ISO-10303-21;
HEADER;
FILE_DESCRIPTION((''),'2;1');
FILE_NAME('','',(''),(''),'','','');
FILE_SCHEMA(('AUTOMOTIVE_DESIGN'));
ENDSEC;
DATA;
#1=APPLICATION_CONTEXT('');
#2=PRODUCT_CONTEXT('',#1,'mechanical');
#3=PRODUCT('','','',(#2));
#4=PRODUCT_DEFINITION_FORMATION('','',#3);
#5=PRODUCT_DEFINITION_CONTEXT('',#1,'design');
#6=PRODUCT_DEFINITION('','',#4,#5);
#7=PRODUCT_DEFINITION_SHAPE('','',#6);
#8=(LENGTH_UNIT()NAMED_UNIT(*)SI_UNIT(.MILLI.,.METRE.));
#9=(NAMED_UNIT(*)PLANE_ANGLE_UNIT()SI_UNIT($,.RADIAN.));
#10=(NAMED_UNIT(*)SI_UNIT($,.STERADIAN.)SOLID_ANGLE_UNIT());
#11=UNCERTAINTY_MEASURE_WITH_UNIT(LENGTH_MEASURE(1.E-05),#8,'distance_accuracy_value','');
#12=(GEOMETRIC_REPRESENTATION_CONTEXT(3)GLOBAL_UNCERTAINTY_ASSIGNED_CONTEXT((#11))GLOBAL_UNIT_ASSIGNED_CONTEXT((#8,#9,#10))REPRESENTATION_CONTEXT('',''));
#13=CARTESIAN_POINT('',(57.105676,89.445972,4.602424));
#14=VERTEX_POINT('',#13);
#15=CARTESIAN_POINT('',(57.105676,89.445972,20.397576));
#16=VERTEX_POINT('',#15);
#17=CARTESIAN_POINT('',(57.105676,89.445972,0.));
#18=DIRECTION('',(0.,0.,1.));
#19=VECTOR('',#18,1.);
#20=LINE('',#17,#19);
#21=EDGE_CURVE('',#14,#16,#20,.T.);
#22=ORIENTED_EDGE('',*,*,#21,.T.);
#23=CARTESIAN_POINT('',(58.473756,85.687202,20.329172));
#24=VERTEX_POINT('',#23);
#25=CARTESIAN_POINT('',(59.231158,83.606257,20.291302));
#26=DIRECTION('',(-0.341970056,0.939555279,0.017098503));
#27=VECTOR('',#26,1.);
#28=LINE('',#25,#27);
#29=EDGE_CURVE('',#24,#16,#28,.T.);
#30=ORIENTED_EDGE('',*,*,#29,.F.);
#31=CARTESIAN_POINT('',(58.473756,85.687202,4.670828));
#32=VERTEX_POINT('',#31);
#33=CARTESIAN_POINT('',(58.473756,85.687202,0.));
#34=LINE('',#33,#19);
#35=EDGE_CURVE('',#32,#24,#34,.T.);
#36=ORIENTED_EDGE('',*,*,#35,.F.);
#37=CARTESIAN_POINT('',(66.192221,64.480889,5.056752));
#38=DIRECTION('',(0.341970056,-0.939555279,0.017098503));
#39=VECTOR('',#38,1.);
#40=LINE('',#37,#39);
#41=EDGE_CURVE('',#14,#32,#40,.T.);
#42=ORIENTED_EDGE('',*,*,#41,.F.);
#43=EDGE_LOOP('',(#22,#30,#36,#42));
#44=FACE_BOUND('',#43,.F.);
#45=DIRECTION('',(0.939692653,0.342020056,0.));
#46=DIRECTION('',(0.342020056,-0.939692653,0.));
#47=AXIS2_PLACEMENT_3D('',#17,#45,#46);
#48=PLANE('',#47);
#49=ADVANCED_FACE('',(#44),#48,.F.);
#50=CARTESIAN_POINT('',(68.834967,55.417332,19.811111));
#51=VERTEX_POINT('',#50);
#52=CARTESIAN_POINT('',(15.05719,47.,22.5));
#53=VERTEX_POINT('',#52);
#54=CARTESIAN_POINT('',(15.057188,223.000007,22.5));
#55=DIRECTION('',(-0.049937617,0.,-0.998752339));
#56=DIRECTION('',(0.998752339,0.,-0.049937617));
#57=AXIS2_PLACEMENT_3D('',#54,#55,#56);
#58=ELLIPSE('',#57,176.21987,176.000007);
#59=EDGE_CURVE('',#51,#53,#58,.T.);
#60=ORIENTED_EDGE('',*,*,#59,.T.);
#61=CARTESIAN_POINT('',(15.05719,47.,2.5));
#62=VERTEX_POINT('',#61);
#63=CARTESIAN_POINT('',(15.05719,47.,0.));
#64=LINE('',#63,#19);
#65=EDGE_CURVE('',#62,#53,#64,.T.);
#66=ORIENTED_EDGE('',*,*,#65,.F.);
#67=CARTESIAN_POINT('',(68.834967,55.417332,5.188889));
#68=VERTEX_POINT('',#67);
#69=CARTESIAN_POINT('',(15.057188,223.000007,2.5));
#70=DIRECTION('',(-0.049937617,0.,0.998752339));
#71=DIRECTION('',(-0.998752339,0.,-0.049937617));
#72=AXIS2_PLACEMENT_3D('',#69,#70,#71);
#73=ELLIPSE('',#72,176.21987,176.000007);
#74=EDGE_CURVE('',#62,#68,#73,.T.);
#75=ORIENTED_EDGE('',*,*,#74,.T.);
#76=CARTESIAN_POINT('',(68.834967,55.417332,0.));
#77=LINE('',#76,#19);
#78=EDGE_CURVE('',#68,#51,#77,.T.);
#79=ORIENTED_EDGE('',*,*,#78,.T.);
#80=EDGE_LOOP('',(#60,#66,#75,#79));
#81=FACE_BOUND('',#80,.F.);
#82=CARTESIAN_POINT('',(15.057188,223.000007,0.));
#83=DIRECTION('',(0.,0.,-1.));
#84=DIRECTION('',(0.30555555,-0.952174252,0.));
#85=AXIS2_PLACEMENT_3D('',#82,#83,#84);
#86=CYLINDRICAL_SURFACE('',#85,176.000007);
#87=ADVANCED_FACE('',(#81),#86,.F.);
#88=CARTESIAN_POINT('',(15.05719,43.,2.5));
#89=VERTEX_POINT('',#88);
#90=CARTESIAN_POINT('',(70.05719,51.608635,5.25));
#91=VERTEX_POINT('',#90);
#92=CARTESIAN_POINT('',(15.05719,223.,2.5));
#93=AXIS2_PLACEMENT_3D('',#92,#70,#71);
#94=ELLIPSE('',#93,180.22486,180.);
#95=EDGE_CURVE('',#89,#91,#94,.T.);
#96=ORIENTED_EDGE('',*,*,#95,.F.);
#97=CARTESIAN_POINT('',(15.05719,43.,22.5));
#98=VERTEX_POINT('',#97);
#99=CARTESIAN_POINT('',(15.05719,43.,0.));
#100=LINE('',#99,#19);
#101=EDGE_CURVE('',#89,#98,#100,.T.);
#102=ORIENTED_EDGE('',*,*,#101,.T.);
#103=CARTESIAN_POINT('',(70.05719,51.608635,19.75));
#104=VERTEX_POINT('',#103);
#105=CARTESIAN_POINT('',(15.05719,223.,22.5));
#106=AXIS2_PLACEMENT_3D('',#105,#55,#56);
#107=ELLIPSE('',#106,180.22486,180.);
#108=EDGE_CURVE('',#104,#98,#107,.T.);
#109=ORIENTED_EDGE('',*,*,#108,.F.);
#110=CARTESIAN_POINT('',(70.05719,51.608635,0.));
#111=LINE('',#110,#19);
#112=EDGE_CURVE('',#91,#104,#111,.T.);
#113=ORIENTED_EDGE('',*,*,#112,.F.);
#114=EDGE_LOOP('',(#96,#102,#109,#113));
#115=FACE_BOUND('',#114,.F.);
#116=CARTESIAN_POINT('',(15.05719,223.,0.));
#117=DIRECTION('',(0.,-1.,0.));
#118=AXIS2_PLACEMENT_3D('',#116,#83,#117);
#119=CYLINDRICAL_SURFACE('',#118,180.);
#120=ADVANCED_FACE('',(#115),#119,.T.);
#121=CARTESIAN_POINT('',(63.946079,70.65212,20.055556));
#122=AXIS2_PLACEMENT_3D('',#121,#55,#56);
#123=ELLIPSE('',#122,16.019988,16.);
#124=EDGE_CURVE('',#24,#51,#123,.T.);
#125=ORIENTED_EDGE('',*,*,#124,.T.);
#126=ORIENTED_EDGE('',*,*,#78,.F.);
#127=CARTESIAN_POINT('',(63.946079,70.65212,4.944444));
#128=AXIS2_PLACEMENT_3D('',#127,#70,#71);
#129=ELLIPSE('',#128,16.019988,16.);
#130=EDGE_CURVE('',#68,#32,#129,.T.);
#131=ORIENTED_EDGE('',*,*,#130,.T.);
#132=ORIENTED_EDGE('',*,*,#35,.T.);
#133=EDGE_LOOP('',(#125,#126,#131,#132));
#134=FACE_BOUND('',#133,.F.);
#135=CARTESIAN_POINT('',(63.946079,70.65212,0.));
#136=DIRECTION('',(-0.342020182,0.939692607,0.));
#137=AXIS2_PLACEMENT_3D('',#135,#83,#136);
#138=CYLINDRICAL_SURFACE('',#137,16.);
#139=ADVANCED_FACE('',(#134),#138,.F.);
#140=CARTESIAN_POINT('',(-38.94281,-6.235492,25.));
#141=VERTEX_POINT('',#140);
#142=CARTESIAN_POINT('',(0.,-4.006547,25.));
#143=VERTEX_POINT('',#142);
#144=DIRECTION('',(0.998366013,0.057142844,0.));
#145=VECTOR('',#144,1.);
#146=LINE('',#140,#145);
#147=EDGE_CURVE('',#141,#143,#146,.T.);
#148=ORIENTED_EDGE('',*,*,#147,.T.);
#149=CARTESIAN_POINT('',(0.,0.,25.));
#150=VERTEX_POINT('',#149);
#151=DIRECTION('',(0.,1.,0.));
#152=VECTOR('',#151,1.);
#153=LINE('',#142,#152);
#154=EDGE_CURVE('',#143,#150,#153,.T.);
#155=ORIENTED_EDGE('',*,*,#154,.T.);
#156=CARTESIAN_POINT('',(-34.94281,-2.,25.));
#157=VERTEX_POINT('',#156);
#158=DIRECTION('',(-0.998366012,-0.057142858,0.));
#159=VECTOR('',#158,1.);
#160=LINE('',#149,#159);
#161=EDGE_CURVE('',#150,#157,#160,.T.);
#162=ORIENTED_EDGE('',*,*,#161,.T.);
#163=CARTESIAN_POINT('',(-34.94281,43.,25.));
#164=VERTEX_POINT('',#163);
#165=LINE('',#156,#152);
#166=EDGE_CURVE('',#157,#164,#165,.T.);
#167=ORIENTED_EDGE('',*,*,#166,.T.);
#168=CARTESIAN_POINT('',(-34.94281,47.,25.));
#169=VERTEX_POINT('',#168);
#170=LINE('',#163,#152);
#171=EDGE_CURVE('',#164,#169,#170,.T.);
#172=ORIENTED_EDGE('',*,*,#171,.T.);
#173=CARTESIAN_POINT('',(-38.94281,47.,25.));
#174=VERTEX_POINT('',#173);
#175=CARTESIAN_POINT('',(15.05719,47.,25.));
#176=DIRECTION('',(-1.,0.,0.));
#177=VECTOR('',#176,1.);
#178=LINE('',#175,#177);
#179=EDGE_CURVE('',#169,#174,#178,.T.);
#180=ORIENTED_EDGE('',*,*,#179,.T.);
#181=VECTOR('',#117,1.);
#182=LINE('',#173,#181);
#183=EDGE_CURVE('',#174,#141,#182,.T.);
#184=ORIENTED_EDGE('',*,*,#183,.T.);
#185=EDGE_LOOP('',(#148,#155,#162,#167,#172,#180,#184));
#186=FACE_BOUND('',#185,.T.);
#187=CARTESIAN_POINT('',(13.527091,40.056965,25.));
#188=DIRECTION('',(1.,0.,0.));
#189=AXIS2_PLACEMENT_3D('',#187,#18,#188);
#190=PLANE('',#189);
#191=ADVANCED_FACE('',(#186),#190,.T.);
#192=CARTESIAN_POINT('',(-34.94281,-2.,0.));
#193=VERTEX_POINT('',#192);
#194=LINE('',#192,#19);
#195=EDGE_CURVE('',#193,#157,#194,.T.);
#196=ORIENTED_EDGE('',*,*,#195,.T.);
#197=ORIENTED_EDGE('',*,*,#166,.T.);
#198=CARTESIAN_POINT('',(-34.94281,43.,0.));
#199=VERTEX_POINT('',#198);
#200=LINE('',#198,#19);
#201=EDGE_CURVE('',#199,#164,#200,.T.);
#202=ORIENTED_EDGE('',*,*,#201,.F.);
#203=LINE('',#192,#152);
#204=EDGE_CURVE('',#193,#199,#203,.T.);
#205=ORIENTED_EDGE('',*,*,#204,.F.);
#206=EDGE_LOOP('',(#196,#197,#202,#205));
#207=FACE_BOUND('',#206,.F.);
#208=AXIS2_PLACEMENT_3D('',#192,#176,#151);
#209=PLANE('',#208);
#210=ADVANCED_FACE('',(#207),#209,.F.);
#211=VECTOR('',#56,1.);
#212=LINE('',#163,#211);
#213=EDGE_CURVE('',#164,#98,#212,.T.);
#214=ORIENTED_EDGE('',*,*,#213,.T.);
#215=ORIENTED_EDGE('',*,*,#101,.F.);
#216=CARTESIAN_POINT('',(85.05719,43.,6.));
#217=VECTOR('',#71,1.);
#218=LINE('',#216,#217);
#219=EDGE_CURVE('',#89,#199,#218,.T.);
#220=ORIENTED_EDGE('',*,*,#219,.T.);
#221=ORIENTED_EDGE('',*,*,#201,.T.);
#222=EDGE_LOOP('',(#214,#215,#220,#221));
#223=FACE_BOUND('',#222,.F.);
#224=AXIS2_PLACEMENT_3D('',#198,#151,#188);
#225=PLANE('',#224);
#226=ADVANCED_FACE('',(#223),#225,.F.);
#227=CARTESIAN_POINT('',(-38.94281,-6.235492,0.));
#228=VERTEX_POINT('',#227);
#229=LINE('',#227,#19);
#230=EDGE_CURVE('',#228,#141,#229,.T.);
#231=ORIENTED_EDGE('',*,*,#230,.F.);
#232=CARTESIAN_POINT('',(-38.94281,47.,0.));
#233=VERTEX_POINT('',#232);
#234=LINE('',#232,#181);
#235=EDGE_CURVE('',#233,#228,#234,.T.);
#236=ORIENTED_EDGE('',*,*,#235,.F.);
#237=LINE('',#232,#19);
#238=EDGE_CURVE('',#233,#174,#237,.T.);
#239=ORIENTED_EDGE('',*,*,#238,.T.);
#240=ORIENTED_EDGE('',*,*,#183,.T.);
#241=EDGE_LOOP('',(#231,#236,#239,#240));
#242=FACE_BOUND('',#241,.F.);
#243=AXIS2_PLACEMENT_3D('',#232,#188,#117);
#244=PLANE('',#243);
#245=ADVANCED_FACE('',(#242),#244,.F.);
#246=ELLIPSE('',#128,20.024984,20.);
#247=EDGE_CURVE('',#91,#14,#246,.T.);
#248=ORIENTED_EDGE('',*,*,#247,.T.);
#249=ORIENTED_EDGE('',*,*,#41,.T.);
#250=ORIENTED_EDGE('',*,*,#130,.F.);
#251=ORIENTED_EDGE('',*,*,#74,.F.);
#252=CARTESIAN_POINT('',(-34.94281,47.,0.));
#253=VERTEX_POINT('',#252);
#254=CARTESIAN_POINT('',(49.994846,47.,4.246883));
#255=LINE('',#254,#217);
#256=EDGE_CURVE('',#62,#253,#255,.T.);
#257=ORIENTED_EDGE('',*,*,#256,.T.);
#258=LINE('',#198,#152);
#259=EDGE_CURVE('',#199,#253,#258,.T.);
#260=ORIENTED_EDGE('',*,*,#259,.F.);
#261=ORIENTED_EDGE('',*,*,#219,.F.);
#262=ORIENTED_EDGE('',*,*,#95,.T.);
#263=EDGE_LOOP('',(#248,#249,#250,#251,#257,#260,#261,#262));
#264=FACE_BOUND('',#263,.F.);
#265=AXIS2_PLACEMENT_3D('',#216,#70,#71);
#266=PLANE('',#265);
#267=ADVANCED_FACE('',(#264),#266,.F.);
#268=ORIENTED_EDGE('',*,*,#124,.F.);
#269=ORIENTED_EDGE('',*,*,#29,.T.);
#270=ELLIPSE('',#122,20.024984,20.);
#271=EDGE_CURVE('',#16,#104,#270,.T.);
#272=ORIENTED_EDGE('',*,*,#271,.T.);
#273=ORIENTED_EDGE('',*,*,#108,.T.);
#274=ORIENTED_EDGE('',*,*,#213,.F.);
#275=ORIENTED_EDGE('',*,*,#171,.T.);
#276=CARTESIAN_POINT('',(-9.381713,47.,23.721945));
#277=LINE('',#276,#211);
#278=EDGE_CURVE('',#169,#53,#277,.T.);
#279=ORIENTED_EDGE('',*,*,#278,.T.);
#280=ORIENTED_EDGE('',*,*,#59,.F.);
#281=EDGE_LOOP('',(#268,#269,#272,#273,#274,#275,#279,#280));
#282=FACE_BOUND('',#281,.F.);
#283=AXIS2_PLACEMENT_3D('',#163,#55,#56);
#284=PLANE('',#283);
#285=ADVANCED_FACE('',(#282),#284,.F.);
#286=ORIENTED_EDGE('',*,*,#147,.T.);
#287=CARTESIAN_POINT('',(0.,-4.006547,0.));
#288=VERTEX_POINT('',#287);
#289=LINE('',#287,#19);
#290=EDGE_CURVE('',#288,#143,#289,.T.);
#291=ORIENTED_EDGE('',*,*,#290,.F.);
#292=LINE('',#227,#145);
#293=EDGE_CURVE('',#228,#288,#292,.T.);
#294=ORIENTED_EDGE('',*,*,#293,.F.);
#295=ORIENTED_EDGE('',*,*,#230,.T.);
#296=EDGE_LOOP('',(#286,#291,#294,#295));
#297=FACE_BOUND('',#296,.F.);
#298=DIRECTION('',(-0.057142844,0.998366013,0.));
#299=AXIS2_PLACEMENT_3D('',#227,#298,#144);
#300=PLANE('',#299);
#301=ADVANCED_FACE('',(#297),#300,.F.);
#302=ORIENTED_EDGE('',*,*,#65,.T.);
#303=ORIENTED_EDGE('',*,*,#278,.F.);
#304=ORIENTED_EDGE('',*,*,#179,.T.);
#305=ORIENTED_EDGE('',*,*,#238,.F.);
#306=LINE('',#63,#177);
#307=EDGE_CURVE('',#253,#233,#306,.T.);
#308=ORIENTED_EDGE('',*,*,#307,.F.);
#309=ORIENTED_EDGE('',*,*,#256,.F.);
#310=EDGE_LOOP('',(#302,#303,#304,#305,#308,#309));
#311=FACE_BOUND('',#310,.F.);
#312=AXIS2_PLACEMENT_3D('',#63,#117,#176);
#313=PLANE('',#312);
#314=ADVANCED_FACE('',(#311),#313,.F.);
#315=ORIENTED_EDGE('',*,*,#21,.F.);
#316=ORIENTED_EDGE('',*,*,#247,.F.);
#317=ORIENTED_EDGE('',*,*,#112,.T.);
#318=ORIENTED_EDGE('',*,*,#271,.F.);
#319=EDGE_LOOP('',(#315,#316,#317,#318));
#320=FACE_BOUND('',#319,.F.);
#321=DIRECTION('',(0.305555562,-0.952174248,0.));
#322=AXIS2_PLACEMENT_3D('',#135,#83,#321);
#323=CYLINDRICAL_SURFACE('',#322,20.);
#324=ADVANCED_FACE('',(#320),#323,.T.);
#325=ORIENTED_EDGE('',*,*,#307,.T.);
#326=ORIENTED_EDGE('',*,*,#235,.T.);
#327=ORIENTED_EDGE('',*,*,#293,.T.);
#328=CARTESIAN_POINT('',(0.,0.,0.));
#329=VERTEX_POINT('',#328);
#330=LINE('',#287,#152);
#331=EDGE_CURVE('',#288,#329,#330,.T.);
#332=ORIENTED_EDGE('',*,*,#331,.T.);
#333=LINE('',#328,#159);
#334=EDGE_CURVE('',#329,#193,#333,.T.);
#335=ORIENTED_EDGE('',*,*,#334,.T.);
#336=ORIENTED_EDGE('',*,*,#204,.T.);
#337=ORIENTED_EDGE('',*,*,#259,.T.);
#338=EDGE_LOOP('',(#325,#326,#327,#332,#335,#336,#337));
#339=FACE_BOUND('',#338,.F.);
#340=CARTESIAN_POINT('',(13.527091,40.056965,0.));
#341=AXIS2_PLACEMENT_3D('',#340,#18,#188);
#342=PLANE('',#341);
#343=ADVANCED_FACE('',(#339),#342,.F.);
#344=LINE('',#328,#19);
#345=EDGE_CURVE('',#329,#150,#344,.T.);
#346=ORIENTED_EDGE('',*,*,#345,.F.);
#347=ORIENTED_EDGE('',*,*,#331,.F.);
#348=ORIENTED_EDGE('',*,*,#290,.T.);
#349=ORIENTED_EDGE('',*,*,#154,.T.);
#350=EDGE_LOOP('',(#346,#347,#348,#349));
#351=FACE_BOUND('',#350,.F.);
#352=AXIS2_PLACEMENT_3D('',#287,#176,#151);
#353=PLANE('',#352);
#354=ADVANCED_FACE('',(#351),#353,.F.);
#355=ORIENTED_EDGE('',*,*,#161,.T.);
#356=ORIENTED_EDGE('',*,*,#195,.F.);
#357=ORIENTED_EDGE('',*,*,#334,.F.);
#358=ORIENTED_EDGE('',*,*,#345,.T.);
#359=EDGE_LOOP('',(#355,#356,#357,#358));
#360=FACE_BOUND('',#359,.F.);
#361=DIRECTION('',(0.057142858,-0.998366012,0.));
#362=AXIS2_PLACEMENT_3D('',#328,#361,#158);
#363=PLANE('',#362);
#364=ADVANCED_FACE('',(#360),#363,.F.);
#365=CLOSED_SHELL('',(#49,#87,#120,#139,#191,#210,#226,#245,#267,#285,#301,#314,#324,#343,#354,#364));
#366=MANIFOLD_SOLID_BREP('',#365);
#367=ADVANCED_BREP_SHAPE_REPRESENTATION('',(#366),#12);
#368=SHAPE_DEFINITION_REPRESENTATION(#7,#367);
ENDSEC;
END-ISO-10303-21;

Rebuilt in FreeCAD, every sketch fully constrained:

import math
import FreeCAD as App
import Part
import Sketcher
from FreeCAD import Vector
Q = App.Units.Quantity

doc = App.newDocument("Part")
body = doc.addObject("PartDesign::Body", "Body")

# Sketch on XY plane
sketch1 = doc.addObject("Sketcher::SketchObject", "Sketch")
body.addObject(sketch1)
sketch1.AttachmentSupport = (doc.XY_Plane, [""])
sketch1.MapMode = "FlatFace"
sketch1.addGeometry(Part.LineSegment(Vector(0, -4.006547, 0), Vector(0, 0, 0)), False)
sketch1.addGeometry(Part.LineSegment(Vector(0, 0, 0), Vector(-34.94281, -2, 0)), False)
sketch1.addGeometry(Part.LineSegment(Vector(-34.94281, -2, 0), Vector(-34.94281, 43, 0)), False)
sketch1.addGeometry(Part.LineSegment(Vector(-34.94281, 43, 0), Vector(15.05719, 43, 0)), False)
sketch1.addGeometry(Part.ArcOfCircle(Part.Circle(Vector(15.05719, 223, 0), Vector(0, 0, 1), 180), math.radians(-90), math.radians(-72.208409)), False)
sketch1.addGeometry(Part.ArcOfCircle(Part.Circle(Vector(63.946079, 70.65212, 0), Vector(0, 0, 1), 20), math.radians(-72.208409), math.radians(110)), False)
sketch1.addGeometry(Part.LineSegment(Vector(57.105676, 89.445972, 0), Vector(58.473756, 85.687202, 0)), False)
sketch1.addGeometry(Part.ArcOfCircle(Part.Circle(Vector(63.946079, 70.65212, 0), Vector(0, 0, 1), 16), math.radians(-72.208412), math.radians(110.000002)), False)
sketch1.addGeometry(Part.ArcOfCircle(Part.Circle(Vector(15.057188, 223.000007, 0), Vector(0, 0, 1), 176.000007), math.radians(-89.999999), math.radians(-72.20841)), False)
sketch1.addGeometry(Part.LineSegment(Vector(15.05719, 47, 0), Vector(-38.94281, 47, 0)), False)
sketch1.addGeometry(Part.LineSegment(Vector(-38.94281, 47, 0), Vector(-38.94281, -6.235492, 0)), False)
sketch1.addGeometry(Part.LineSegment(Vector(-38.94281, -6.235492, 0), Vector(0, -4.006547, 0)), False)
sketch1.addConstraint(Sketcher.Constraint("Coincident", 0, 2, 1, 1))
sketch1.addConstraint(Sketcher.Constraint("Coincident", 1, 2, 2, 1))
sketch1.addConstraint(Sketcher.Constraint("Coincident", 2, 2, 3, 1))
sketch1.addConstraint(Sketcher.Constraint("Tangent", 3, 2, 4, 1))
sketch1.addConstraint(Sketcher.Constraint("Tangent", 4, 2, 5, 1))
sketch1.addConstraint(Sketcher.Constraint("Coincident", 5, 2, 6, 1))
sketch1.addConstraint(Sketcher.Constraint("Coincident", 6, 2, 7, 2))
sketch1.addConstraint(Sketcher.Constraint("Tangent", 7, 1, 8, 2))
sketch1.addConstraint(Sketcher.Constraint("Tangent", 8, 1, 9, 1))
sketch1.addConstraint(Sketcher.Constraint("Coincident", 9, 2, 10, 1))
sketch1.addConstraint(Sketcher.Constraint("Coincident", 10, 2, 11, 1))
sketch1.addConstraint(Sketcher.Constraint("Coincident", 11, 2, 0, 1))
sketch1.addConstraint(Sketcher.Constraint("Vertical", 0))
sketch1.addConstraint(Sketcher.Constraint("Vertical", 2))
sketch1.addConstraint(Sketcher.Constraint("Horizontal", 3))
sketch1.addConstraint(Sketcher.Constraint("Horizontal", 9))
sketch1.addConstraint(Sketcher.Constraint("Vertical", 10))
sketch1.addConstraint(Sketcher.Constraint("Coincident", 0, 2, -1, 1))
sketch1.addConstraint(Sketcher.Constraint("Coincident", 7, 3, 5, 3))
sketch1.addConstraint(Sketcher.Constraint("Coincident", 8, 3, 4, 3))
sketch1.addConstraint(Sketcher.Constraint("Parallel", 1, 11))
sketch1.addConstraint(Sketcher.Constraint("Radius", 4, Q("180 mm")))
sketch1.addConstraint(Sketcher.Constraint("Radius", 5, Q("20 mm")))
sketch1.addConstraint(Sketcher.Constraint("Radius", 7, Q("16 mm")))
sketch1.addConstraint(Sketcher.Constraint("DistanceX", 3, 1, 3, 2, Q("50 mm")))
sketch1.addConstraint(Sketcher.Constraint("DistanceX", 9, 2, 9, 1, Q("54 mm")))
sketch1.addConstraint(Sketcher.Constraint("DistanceY", 2, 1, 2, 2, Q("45 mm")))
sketch1.addConstraint(Sketcher.Constraint("Angle", 6, Q("-70.000005 deg")))
sketch1.addConstraint(Sketcher.Constraint("Distance", 1, Q("35 mm")))
sketch1.addConstraint(Sketcher.Constraint("DistanceY", -1, 1, 4, 3, Q("223 mm")))
sketch1.addConstraint(Sketcher.Constraint("DistanceX", 3, 2, 4, 2, Q("55 mm")))
sketch1.addConstraint(Sketcher.Constraint("DistanceY", -1, 1, 6, 2, Q("85.687202 mm")))
sketch1.addConstraint(Sketcher.Constraint("DistanceY", 0, 1, 0, 2, Q("4.006547 mm")))
pad1 = doc.addObject("PartDesign::Pad", "Pad")
body.addObject(pad1)
pad1.Profile = sketch1
pad1.Length = 25

# Sketch on XZ plane
sketch2 = doc.addObject("Sketcher::SketchObject", "Sketch001")
body.addObject(sketch2)
sketch2.AttachmentSupport = (doc.XZ_Plane, [""])
sketch2.MapMode = "FlatFace"
sketch2.AttachmentOffset = App.Placement(Vector(0, 0, -43), App.Rotation())
sketch2.addGeometry(Part.LineSegment(Vector(85.05719, 19, 0), Vector(85.05719, 25, 0)), False)
sketch2.addGeometry(Part.LineSegment(Vector(85.05719, 25, 0), Vector(-34.94281, 25, 0)), False)
sketch2.addGeometry(Part.LineSegment(Vector(-34.94281, 25, 0), Vector(85.05719, 19, 0)), False)
sketch2.addGeometry(Part.LineSegment(Vector(-34.94281, 0, 0), Vector(85.05719, 0, 0)), False)
sketch2.addGeometry(Part.LineSegment(Vector(85.05719, 0, 0), Vector(85.05719, 6, 0)), False)
sketch2.addGeometry(Part.LineSegment(Vector(85.05719, 6, 0), Vector(-34.94281, 0, 0)), False)
sketch2.addConstraint(Sketcher.Constraint("Coincident", 0, 2, 1, 1))
sketch2.addConstraint(Sketcher.Constraint("Coincident", 1, 2, 2, 1))
sketch2.addConstraint(Sketcher.Constraint("Coincident", 2, 2, 0, 1))
sketch2.addConstraint(Sketcher.Constraint("Coincident", 3, 2, 4, 1))
sketch2.addConstraint(Sketcher.Constraint("Coincident", 4, 2, 5, 1))
sketch2.addConstraint(Sketcher.Constraint("Coincident", 5, 2, 3, 1))
sketch2.addConstraint(Sketcher.Constraint("Vertical", 0))
sketch2.addConstraint(Sketcher.Constraint("Horizontal", 1))
sketch2.addConstraint(Sketcher.Constraint("Horizontal", 3))
sketch2.addConstraint(Sketcher.Constraint("Vertical", 4))
sketch2.addConstraint(Sketcher.Constraint("PointOnObject", 3, 2, -1))
sketch2.addConstraint(Sketcher.Constraint("Vertical", 2, 2, 3, 2))
sketch2.addConstraint(Sketcher.Constraint("Vertical", 1, 2, 5, 2))
sketch2.addConstraint(Sketcher.Constraint("Equal", 0, 4))
sketch2.addConstraint(Sketcher.Constraint("DistanceX", 1, 2, 1, 1, Q("120 mm")))
sketch2.addConstraint(Sketcher.Constraint("DistanceY", 0, 1, 0, 2, Q("6 mm")))
sketch2.addConstraint(Sketcher.Constraint("DistanceY", -1, 1, 0, 2, Q("25 mm")))
sketch2.addConstraint(Sketcher.Constraint("DistanceX", -1, 1, 0, 2, Q("85.05719 mm")))
pocket1 = doc.addObject("PartDesign::Pocket", "Pocket")
body.addObject(pocket1)
pocket1.Profile = sketch2
pocket1.Type = "ThroughAll"

doc.recompute()
